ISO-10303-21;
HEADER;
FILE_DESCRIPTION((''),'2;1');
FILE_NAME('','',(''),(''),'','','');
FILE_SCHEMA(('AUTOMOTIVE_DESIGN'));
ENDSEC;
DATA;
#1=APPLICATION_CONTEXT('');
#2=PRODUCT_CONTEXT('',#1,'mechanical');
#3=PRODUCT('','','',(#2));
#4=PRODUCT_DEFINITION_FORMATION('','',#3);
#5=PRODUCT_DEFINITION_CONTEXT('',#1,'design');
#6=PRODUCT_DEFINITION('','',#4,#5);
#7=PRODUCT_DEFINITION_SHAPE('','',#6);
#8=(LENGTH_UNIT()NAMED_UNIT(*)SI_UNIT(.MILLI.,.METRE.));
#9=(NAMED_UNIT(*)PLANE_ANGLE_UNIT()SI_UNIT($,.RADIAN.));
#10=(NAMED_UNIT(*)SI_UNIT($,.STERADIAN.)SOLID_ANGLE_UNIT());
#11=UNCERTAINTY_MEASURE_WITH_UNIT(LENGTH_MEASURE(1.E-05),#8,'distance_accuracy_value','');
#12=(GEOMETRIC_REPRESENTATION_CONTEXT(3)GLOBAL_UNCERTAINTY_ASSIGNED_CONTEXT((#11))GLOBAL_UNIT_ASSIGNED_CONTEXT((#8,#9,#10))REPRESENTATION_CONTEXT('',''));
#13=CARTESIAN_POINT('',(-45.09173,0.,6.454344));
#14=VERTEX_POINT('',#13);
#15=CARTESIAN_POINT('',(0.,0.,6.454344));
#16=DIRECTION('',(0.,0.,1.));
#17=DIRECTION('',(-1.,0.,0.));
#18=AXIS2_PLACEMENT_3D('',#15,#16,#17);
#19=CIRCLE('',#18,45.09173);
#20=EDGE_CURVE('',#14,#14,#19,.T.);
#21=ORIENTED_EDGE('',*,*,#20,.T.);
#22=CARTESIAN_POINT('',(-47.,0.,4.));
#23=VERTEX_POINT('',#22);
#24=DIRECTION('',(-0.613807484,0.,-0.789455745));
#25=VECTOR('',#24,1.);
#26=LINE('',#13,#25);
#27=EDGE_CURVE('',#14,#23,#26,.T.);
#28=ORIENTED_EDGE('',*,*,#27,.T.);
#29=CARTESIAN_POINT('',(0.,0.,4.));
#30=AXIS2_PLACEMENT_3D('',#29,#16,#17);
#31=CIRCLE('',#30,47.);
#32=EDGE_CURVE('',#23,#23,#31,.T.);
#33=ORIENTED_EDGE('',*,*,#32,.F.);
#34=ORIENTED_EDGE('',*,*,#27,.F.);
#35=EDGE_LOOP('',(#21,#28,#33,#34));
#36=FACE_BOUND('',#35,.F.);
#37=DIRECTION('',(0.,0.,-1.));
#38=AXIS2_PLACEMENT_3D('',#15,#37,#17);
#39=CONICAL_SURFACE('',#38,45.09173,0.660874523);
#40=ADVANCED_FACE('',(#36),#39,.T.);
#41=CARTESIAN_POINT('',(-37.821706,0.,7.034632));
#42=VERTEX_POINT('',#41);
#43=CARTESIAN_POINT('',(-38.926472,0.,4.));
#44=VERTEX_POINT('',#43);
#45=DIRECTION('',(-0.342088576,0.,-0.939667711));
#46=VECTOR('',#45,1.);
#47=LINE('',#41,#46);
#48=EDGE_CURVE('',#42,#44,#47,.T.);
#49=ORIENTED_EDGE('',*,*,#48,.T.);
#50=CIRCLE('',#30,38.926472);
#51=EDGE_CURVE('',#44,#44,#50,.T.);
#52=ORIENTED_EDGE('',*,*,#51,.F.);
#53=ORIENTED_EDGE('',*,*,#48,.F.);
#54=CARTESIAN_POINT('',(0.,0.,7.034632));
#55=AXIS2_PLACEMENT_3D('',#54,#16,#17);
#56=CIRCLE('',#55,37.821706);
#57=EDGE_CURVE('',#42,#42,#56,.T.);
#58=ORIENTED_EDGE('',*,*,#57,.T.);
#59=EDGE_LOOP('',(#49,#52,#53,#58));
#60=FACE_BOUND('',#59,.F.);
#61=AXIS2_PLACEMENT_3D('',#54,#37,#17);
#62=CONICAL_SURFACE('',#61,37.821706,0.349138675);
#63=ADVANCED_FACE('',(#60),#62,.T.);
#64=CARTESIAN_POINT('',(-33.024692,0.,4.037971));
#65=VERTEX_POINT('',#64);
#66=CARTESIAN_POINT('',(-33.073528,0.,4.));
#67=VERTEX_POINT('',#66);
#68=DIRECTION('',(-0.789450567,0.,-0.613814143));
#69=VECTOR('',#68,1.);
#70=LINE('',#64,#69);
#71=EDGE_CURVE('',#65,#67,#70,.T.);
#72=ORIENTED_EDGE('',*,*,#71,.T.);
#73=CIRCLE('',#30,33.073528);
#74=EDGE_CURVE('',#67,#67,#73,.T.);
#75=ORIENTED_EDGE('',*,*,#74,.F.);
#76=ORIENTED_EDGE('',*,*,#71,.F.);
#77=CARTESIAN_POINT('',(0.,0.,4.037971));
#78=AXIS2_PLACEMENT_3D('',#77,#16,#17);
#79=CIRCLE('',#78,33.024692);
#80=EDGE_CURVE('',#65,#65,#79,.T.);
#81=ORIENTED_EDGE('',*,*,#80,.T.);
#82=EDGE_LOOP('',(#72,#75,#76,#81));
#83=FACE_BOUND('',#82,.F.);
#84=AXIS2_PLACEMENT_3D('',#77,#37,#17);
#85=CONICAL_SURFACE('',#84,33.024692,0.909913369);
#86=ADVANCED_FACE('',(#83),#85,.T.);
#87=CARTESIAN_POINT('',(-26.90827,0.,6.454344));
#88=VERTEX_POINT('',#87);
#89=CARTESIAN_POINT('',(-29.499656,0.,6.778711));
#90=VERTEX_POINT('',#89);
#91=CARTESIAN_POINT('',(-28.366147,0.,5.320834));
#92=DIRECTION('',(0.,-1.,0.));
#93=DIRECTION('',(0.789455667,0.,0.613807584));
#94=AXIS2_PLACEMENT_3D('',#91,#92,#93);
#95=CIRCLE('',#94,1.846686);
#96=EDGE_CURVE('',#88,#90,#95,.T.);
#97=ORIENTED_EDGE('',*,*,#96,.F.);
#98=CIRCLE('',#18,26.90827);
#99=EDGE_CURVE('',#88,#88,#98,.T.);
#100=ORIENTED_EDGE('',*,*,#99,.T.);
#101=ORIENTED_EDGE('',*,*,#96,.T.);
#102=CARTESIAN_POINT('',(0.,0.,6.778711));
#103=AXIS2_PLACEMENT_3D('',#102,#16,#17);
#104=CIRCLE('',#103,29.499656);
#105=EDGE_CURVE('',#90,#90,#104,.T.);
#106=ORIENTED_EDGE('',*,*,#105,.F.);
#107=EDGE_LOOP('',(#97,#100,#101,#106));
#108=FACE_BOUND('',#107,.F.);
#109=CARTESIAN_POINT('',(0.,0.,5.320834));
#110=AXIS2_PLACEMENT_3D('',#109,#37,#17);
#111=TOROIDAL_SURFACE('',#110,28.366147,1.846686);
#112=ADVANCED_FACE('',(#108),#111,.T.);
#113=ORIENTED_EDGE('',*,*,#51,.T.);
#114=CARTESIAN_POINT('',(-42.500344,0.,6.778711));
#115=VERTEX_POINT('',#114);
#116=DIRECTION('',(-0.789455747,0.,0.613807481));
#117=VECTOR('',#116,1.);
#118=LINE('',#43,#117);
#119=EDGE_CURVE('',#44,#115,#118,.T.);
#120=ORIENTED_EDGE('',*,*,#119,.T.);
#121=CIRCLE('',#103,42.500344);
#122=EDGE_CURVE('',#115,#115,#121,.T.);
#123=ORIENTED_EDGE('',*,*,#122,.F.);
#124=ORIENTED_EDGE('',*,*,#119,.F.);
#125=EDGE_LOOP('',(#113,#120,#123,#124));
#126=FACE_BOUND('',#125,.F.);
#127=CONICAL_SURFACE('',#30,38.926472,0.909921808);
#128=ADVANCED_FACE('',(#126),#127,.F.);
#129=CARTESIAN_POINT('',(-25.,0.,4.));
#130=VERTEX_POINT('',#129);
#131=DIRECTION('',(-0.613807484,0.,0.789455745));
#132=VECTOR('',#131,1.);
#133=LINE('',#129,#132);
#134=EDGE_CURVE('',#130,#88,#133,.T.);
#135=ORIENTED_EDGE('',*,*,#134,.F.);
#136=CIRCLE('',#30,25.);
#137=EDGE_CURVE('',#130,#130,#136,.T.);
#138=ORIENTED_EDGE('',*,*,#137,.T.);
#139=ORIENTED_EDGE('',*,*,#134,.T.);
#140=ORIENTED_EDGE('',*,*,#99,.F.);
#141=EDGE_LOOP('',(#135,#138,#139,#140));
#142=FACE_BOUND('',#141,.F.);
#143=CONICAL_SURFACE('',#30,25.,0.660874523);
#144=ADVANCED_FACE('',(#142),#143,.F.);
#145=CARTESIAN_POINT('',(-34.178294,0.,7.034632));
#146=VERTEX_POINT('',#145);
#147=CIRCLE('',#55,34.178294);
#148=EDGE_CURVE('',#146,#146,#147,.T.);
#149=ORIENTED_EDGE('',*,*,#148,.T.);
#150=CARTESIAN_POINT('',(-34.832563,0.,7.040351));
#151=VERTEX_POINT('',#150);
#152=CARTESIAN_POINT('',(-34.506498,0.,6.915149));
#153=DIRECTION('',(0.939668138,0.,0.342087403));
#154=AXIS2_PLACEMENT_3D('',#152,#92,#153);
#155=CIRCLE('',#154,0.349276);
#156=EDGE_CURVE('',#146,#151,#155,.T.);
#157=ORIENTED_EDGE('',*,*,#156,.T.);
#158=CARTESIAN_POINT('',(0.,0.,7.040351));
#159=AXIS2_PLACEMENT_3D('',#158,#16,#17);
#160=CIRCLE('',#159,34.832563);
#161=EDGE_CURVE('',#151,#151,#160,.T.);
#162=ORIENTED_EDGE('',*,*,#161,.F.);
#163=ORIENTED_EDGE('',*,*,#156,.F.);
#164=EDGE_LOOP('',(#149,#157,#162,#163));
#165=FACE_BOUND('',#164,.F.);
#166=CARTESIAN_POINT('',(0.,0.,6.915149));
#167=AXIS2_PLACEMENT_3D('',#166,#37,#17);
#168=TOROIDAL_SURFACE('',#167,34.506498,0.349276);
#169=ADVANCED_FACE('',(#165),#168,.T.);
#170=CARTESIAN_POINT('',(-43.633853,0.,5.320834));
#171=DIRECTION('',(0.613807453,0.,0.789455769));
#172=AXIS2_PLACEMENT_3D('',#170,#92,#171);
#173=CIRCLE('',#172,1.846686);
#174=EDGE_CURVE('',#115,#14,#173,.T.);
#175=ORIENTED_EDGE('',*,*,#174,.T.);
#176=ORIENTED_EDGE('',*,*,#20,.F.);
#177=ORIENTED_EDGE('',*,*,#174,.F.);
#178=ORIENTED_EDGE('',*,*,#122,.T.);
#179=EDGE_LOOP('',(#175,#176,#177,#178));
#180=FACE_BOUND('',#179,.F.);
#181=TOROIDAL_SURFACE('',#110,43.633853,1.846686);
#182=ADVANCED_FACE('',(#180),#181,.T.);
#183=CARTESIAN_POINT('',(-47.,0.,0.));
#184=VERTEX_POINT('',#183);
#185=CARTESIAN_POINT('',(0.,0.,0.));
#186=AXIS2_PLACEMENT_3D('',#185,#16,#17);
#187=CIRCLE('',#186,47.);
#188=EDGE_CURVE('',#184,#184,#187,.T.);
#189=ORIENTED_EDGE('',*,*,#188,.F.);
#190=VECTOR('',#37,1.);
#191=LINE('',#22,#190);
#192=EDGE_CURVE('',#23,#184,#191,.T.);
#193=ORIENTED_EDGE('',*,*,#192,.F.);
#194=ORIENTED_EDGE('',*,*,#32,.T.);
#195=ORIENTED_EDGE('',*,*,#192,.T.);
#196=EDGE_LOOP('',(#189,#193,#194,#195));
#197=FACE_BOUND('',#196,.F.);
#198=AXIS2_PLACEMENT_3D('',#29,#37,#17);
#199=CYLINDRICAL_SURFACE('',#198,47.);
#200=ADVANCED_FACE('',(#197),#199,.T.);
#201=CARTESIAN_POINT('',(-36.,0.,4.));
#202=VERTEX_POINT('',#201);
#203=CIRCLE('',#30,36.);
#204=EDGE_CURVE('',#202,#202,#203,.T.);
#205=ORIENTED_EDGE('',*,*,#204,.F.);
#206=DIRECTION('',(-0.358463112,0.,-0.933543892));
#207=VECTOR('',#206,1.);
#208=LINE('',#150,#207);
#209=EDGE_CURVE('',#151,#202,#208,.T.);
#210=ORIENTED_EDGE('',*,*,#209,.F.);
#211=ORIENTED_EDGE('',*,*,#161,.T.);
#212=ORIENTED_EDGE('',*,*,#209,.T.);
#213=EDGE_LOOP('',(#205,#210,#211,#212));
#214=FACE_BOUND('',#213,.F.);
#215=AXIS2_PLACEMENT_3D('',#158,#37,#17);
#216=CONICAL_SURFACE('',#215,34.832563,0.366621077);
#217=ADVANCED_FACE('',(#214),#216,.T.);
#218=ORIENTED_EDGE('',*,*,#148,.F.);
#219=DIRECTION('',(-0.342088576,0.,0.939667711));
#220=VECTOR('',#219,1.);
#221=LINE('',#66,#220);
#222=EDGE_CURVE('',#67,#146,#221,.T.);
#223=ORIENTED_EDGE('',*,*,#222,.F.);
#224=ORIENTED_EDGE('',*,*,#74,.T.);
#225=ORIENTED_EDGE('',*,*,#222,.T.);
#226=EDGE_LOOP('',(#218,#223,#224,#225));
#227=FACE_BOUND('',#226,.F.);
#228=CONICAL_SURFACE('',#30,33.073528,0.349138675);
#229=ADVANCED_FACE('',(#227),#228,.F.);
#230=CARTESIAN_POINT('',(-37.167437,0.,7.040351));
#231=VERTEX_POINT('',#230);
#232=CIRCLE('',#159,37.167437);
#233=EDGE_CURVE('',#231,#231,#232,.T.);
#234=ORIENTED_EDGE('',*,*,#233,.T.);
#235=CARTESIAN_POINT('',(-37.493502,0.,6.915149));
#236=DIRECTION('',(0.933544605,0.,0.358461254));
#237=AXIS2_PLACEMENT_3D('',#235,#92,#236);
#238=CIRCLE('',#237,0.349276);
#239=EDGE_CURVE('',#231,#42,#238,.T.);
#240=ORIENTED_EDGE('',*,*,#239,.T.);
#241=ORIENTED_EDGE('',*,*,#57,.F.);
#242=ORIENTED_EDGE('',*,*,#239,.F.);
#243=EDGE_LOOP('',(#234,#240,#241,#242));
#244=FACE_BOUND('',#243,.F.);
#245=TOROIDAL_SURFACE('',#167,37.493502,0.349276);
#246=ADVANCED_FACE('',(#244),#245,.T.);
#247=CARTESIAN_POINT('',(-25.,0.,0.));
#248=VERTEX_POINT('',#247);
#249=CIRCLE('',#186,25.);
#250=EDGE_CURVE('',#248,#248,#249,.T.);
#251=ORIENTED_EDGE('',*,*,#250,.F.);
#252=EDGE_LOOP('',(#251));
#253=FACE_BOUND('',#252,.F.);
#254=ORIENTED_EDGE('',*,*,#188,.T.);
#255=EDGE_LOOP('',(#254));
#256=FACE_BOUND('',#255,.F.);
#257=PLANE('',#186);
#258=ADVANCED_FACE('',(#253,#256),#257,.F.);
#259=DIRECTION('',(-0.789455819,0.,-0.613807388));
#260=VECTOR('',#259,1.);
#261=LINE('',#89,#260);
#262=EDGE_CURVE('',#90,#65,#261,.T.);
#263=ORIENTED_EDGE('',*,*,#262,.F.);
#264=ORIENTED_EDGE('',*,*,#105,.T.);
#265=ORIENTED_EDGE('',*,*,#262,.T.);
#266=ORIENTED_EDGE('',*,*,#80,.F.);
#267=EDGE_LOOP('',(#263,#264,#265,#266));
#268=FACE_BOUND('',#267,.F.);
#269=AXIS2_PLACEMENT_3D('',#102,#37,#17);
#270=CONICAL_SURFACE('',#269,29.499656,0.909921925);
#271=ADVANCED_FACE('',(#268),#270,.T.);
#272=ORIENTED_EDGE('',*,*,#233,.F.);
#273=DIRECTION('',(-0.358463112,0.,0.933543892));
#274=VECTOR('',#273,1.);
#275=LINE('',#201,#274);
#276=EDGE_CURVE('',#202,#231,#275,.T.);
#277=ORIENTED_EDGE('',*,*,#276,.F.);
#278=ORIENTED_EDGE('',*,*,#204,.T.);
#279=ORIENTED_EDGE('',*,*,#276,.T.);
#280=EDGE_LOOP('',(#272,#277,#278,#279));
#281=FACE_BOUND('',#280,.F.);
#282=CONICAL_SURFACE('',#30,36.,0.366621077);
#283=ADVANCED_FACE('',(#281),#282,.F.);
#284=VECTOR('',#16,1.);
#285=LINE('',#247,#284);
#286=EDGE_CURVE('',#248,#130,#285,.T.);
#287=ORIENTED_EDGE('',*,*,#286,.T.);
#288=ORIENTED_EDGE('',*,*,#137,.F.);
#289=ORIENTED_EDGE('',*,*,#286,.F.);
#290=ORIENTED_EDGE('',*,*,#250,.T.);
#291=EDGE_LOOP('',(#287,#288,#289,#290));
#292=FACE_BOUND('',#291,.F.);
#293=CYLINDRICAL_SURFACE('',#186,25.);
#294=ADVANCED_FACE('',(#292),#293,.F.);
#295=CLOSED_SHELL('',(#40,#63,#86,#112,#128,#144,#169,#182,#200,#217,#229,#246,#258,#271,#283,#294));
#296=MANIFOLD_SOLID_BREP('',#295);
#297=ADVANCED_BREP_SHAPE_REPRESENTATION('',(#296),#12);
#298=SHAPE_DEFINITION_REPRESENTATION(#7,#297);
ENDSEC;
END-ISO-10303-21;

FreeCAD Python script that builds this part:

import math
import FreeCAD as App
import Part
import Sketcher

V = App.Vector

doc = App.newDocument("Part")
body = doc.addObject("PartDesign::Body", "Body")

# Sketch on XZ plane
sketch1 = body.newObject("Sketcher::SketchObject", "Sketch")
sketch1.AttachmentSupport = (doc.getObject("XZ_Plane"), [""])
sketch1.MapMode = "FlatFace"
sketch1.addGeometry([
    Part.LineSegment(V(-47, 0, 0), V(-25, 0, 0)),  # 0
    Part.LineSegment(V(-25, 0, 0), V(-25, 4, 0)),  # 1
    Part.LineSegment(V(-25, 4, 0), V(-26.91, 6.45, 0)),  # 2
    Part.ArcOfCircle(Part.Circle(V(-28.37, 5.32, 0), V(0, 0, 1), 1.85), math.radians(38), math.radians(128)),  # 3
    Part.LineSegment(V(-29.5, 6.78, 0), V(-33.02, 4.04, 0)),  # 4
    Part.LineSegment(V(-33.02, 4.04, 0), V(-33.07, 4, 0)),  # 5
    Part.LineSegment(V(-33.07, 4, 0), V(-34.18, 7.03, 0)),  # 6
    Part.ArcOfCircle(Part.Circle(V(-34.51, 6.92, 0), V(0, 0, 1), 0.35), math.radians(20), math.radians(159)),  # 7
    Part.LineSegment(V(-34.83, 7.04, 0), V(-36, 4, 0)),  # 8
    Part.LineSegment(V(-36, 4, 0), V(-37.17, 7.04, 0)),  # 9
    Part.ArcOfCircle(Part.Circle(V(-37.49, 6.92, 0), V(0, 0, 1), 0.35), math.radians(21), math.radians(160)),  # 10
    Part.LineSegment(V(-37.82, 7.03, 0), V(-38.93, 4, 0)),  # 11
    Part.LineSegment(V(-38.93, 4, 0), V(-42.5, 6.78, 0)),  # 12
    Part.ArcOfCircle(Part.Circle(V(-43.63, 5.32, 0), V(0, 0, 1), 1.85), math.radians(52), math.radians(142)),  # 13
    Part.LineSegment(V(-45.09, 6.45, 0), V(-47, 4, 0)),  # 14
    Part.LineSegment(V(-47, 4, 0), V(-47, 0, 0)),  # 15
], False)
sketch1.addConstraint([
    Sketcher.Constraint("Coincident", 0, 2, 1, 1),
    Sketcher.Constraint("Coincident", 1, 2, 2, 1),
    Sketcher.Constraint("Tangent", 2, 2, 3, 1),
    Sketcher.Constraint("Tangent", 3, 2, 4, 1),
    Sketcher.Constraint("Coincident", 4, 2, 5, 1),
    Sketcher.Constraint("Coincident", 5, 2, 6, 1),
    Sketcher.Constraint("Tangent", 6, 2, 7, 1),
    Sketcher.Constraint("Tangent", 7, 2, 8, 1),
    Sketcher.Constraint("Coincident", 8, 2, 9, 1),
    Sketcher.Constraint("Tangent", 9, 2, 10, 1),
    Sketcher.Constraint("Tangent", 10, 2, 11, 1),
    Sketcher.Constraint("Coincident", 11, 2, 12, 1),
    Sketcher.Constraint("Tangent", 12, 2, 13, 1),
    Sketcher.Constraint("Tangent", 13, 2, 14, 1),
    Sketcher.Constraint("Coincident", 14, 2, 15, 1),
    Sketcher.Constraint("Coincident", 15, 2, 0, 1),
    Sketcher.Constraint("Horizontal", 0),
    Sketcher.Constraint("Vertical", 1),
    Sketcher.Constraint("Vertical", 15),
    Sketcher.Constraint("Equal", 7, 10),
    Sketcher.Constraint("Equal", 3, 13),
    Sketcher.Constraint("PointOnObject", 0, 2, -1),
    Sketcher.Constraint("Perpendicular", 2, 4),
    Sketcher.Constraint("Perpendicular", 12, 14),
    Sketcher.Constraint("Horizontal", 7, 3, 10, 3),
    Sketcher.Constraint("Horizontal", 3, 3, 13, 3),
    Sketcher.Constraint("Horizontal", 1, 2, 5, 2),
    Sketcher.Constraint("Horizontal", 5, 2, 8, 2),
    Sketcher.Constraint("Horizontal", 7, 2, 9, 2),
    Sketcher.Constraint("Horizontal", 6, 2, 10, 2),
    Sketcher.Constraint("Horizontal", 8, 2, 11, 2),
    Sketcher.Constraint("Horizontal", 3, 2, 12, 2),
    Sketcher.Constraint("Horizontal", 11, 2, 14, 2),
    Sketcher.Constraint("DistanceX", 0, 1, 0, 2, 22.0),
    Sketcher.Constraint("DistanceY", 1, 1, 1, 2, 4.0),
    Sketcher.Constraint("DistanceX", 0, 2, -1, 1, 25.0),
    Sketcher.Constraint("DistanceX", 8, 2, -1, 1, 36.0),
    Sketcher.Constraint("Radius", 3, 1.846686),
    Sketcher.Constraint("Radius", 7, 0.349276),
    Sketcher.Constraint("DistanceX", 6, 2, 4, 2, 1.153602),
    Sketcher.Constraint("Distance", 5, 0.061861),
    Sketcher.Constraint("DistanceY", -1, 1, 7, 3, 6.915149),
    Sketcher.Constraint("DistanceX", 2, 2, -1, 1, 26.90827),
    Sketcher.Constraint("DistanceY", -1, 1, 3, 2, 6.778711),
])
revolution = body.newObject("PartDesign::Revolution", "Revolution")
revolution.Profile = sketch1
revolution.ReferenceAxis = (sketch1, ["V_Axis"])
revolution.Angle = 360

doc.recompute()
